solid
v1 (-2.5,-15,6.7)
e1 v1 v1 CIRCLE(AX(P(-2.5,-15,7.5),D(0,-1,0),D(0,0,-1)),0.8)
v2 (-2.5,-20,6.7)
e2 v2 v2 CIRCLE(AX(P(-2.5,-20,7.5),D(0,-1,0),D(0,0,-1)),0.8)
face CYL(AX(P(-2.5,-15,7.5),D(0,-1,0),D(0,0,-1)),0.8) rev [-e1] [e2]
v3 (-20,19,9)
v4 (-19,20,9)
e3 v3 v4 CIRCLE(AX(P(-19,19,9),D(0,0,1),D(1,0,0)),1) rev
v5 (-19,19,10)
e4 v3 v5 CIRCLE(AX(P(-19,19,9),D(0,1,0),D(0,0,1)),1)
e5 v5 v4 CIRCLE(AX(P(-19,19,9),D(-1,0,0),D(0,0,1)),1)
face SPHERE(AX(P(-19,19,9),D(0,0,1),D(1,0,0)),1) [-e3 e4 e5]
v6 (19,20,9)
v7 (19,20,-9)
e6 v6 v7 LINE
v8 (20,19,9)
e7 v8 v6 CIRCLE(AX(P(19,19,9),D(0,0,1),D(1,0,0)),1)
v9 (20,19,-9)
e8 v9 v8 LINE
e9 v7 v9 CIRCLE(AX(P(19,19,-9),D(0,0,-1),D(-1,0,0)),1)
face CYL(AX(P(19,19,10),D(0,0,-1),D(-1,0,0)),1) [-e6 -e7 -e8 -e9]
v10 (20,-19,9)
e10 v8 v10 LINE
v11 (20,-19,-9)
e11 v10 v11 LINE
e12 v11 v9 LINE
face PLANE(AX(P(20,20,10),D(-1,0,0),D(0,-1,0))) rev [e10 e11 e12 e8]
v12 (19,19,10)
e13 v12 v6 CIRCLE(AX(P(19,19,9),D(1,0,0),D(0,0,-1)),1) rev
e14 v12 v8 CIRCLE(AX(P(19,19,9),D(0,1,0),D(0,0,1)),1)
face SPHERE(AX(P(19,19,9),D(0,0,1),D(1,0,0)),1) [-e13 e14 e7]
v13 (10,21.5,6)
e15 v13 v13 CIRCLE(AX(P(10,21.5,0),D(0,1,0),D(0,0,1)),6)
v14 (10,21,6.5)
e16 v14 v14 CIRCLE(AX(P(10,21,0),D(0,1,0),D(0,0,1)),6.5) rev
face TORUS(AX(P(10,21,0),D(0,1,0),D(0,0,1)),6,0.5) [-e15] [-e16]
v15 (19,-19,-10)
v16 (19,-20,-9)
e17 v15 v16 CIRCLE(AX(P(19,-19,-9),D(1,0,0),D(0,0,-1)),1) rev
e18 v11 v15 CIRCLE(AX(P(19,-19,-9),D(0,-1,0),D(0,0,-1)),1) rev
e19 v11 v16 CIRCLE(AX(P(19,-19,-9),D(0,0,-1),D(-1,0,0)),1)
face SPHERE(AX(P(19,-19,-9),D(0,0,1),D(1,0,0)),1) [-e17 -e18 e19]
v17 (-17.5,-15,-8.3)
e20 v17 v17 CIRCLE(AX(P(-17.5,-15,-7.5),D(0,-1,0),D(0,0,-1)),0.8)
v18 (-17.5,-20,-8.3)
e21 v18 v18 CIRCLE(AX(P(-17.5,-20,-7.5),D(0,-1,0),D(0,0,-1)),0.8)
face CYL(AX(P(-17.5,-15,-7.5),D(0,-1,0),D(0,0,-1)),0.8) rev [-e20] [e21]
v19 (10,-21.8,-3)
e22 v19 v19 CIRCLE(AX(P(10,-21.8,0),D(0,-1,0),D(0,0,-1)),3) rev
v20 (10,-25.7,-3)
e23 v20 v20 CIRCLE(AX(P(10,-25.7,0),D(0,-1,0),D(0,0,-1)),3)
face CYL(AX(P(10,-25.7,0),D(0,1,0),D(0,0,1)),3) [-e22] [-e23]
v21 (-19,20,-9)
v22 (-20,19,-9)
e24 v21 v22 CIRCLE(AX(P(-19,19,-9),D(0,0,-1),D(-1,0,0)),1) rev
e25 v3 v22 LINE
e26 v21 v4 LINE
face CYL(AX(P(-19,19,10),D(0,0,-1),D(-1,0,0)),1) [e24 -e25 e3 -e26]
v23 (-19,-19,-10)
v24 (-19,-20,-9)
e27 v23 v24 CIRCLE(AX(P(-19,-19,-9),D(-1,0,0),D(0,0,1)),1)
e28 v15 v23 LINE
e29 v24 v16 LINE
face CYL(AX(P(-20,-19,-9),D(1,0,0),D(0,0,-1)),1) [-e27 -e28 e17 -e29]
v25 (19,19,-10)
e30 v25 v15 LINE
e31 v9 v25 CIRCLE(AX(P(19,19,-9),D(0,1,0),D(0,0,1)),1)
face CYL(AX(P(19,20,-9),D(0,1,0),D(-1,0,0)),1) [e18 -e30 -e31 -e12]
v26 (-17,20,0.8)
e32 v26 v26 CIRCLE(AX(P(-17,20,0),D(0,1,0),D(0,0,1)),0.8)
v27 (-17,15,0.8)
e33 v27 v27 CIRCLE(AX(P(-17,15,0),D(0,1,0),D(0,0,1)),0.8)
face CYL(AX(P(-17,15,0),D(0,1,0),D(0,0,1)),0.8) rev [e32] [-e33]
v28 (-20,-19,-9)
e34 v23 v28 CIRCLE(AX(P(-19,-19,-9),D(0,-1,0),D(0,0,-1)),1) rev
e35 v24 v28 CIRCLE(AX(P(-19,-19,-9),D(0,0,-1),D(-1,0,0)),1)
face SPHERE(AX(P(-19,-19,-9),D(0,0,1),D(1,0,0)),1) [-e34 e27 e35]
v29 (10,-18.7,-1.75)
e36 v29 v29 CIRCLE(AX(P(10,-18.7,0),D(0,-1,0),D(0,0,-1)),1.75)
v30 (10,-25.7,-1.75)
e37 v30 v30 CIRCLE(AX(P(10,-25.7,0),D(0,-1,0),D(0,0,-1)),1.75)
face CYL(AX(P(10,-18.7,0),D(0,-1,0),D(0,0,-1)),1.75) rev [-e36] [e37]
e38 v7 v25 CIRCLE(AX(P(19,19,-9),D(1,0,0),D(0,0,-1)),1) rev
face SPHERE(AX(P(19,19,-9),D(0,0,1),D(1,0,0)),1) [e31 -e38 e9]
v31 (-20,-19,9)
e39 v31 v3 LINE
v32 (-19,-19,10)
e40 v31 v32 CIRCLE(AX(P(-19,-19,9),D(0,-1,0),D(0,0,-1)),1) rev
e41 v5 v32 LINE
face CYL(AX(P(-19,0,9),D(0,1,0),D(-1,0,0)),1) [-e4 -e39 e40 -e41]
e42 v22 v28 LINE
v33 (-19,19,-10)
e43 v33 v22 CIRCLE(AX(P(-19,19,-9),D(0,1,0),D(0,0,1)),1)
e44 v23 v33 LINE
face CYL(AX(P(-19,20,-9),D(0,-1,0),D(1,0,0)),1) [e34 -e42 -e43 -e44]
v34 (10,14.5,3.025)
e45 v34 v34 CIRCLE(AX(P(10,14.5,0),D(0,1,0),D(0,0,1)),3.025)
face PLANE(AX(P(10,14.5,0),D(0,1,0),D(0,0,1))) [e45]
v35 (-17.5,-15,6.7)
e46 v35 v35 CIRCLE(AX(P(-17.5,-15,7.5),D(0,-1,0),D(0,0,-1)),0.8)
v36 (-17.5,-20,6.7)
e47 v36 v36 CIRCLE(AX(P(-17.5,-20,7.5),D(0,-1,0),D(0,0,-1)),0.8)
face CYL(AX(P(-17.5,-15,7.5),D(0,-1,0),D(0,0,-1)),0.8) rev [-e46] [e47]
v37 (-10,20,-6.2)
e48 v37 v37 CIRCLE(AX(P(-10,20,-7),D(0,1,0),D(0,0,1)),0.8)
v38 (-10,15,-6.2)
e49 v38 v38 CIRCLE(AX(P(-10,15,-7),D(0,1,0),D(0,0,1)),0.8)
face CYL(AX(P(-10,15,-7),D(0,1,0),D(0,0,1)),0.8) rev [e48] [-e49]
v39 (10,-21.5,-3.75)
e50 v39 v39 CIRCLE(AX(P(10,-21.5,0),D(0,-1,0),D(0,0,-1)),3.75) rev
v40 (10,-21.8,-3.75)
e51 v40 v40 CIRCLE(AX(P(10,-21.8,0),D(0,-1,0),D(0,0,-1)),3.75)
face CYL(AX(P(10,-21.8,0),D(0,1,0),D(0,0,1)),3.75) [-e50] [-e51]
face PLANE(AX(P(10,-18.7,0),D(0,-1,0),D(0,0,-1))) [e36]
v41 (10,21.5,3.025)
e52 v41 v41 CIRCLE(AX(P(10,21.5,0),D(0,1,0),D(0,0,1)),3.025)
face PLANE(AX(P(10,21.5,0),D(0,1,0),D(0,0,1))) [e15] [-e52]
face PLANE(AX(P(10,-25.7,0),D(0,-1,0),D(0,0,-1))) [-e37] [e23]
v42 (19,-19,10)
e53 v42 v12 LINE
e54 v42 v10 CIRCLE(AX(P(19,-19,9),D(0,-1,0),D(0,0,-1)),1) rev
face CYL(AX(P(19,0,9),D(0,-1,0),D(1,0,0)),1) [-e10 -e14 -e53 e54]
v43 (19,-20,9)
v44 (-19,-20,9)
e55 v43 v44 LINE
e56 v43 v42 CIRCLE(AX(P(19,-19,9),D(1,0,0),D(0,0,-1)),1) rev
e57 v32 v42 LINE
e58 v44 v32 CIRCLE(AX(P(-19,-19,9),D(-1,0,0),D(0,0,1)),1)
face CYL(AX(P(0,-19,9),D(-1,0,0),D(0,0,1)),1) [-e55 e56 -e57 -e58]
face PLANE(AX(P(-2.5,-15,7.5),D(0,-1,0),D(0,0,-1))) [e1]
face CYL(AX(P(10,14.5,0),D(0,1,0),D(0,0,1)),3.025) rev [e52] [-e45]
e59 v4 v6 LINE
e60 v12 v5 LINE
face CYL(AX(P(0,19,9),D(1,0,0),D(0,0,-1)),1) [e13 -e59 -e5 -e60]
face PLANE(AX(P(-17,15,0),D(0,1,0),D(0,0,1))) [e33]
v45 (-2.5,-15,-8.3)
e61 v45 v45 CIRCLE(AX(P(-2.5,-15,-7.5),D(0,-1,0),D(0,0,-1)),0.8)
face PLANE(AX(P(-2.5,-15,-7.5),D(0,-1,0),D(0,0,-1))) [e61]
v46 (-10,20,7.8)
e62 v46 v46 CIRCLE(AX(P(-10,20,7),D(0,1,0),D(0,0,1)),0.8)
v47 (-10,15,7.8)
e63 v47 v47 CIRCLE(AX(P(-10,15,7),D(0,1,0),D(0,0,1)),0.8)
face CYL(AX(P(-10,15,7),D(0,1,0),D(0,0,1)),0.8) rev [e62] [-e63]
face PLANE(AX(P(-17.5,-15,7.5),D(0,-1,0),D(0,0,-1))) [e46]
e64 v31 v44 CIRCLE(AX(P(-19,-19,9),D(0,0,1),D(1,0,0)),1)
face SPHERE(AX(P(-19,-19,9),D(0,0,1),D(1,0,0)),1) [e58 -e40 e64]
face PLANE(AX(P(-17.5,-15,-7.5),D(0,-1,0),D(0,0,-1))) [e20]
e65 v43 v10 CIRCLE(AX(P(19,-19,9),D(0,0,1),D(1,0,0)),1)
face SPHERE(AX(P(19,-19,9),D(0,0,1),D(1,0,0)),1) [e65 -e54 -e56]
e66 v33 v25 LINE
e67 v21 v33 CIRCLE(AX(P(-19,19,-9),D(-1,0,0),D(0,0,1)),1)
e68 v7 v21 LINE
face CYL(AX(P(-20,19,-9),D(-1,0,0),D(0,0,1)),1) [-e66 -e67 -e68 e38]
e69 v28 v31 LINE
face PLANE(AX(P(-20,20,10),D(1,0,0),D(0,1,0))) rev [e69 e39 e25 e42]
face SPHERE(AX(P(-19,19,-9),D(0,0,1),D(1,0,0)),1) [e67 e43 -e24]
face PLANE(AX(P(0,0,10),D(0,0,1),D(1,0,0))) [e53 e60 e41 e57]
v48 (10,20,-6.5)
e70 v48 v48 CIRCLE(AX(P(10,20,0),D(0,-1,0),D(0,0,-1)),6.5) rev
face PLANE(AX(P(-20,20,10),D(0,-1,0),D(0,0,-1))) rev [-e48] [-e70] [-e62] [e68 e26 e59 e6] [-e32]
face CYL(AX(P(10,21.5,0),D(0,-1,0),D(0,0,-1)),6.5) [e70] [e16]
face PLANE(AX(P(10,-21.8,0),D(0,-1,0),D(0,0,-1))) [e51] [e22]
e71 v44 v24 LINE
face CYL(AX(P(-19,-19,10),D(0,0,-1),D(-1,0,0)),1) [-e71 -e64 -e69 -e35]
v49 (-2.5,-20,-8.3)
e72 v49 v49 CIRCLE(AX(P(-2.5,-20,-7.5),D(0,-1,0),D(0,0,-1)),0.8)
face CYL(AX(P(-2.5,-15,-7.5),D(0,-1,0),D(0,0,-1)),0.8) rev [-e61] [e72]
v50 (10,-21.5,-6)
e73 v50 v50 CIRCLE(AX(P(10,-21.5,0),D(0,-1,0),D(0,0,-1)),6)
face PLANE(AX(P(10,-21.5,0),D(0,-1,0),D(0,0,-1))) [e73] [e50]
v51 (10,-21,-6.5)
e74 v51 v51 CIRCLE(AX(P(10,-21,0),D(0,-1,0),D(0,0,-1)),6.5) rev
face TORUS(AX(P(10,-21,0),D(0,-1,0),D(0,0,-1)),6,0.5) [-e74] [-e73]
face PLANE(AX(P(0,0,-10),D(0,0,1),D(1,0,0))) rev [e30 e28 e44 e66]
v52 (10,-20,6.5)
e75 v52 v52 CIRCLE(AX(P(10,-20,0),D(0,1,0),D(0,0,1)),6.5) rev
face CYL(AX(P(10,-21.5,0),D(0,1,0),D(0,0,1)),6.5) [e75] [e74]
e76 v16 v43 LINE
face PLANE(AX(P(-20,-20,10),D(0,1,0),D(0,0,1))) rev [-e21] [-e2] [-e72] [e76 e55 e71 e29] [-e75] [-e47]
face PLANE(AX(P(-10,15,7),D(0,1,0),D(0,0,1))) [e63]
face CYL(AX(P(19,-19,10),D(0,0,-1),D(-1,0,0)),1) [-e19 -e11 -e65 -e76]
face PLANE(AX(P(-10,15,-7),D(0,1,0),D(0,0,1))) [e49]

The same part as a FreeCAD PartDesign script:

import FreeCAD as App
import Part
import Sketcher
from FreeCAD import Vector
Q = App.Units.Quantity


def edges_at(feature, points):
    """Names of the edges that pass closest to the given points."""
    edges = feature.Shape.Edges
    near = lambda p: min(range(len(edges)), key=lambda i: edges[i].distToShape(Part.Vertex(*p))[0])
    return sorted({f"Edge{near(p) + 1}" for p in points})


def add_polygon(sketch, points):
    """Adds a closed chain of lines whose ends are joined by coincident constraints."""
    first, n = sketch.GeometryCount, len(points)
    for a, b in zip(points, points[1:] + points[:1]):
        sketch.addGeometry(Part.LineSegment(App.Vector(*a, 0), App.Vector(*b, 0)), False)
    for i in range(n):
        sketch.addConstraint(Sketcher.Constraint("Coincident", first + i, 2, first + (i + 1) % n, 1))

doc = App.newDocument("Part")
params = doc.addObject("Spreadsheet::Sheet", "Params")
for row, (alias, value) in enumerate([
    ("sketch1_width", "40 mm"),
    ("pad1_length", "20 mm"),
    ("fillet_radius", "1 mm"),
    ("sketch2_diameter", "1.6 mm"),
    ("pocket1_length", "5 mm"),
    ("sketch3_diameter", "1.6 mm"),
    ("pocket2_length", "5 mm"),
    ("sketch4_diameter", "13 mm"),
    ("pad2_length", "1.5 mm"),
    ("sketch5_diameter", "7.5 mm"),
    ("pad3_length", "1.8 mm"),
    ("sketch6_diameter", "6 mm"),
    ("pad4_length", "5.7 mm"),
    ("sketch7_diameter", "3.5 mm"),
    ("pocket3_length", "7 mm"),
    ("fillet2_radius", "0.5 mm"),
    ("sketch8_diameter", "13 mm"),
    ("pad5_length", "1.5 mm"),
    ("sketch9_diameter", "6.05 mm"),
    ("pocket4_length", "7 mm"),
    ("fillet3_radius", "0.5 mm"),
], start=1):
    params.set(f"A{row}", alias)
    params.set(f"B{row}", "=" + value)
    params.setAlias(f"B{row}", alias)

body = doc.addObject("PartDesign::Body", "Body")

sketch1 = body.newObject("Sketcher::SketchObject", "Sketch")
sketch1.AttachmentSupport = (doc.getObject("XY_Plane"), [""])
sketch1.MapMode = "FlatFace"
add_polygon(sketch1, [(-20, 20), (-20, -20), (20, -20), (20, 20)])
sketch1.addConstraint(Sketcher.Constraint("Vertical", 0))
sketch1.addConstraint(Sketcher.Constraint("Horizontal", 1))
sketch1.addConstraint(Sketcher.Constraint("Vertical", 2))
sketch1.addConstraint(Sketcher.Constraint("Horizontal", 3))
sketch1.addConstraint(Sketcher.Constraint("Symmetric", 0, 2, 2, 2, -1, 1))
sketch1.addConstraint(Sketcher.Constraint("Equal", 3, 0))
sketch1.addConstraint(Sketcher.Constraint("DistanceX", 1, 1, 1, 2, Q("40 mm")))
sketch1.setExpression("Constraints[10]", "Params.sketch1_width")
pad1 = body.newObject("PartDesign::Pad", "Pad")
pad1.Profile = sketch1
pad1.setExpression("Length", "Params.pad1_length")
pad1.Midplane = True
doc.recompute()

fillet = body.newObject("PartDesign::Fillet", "Fillet")
fillet.Base = (pad1, ["Edge1"])
fillet.UseAllEdges = True
fillet.setExpression("Radius", "Params.fillet_radius")

sketch2 = body.newObject("Sketcher::SketchObject", "Sketch001")
sketch2.AttachmentSupport = (doc.getObject("XZ_Plane"), [""])
sketch2.MapMode = "FlatFace"
sketch2.AttachmentOffset = App.Placement(Vector(0, 0, 20), App.Rotation())
sketch2.addGeometry(Part.Circle(Vector(-17.5, 7.5, 0), Vector(0, 0, 1), 0.8), False)
sketch2.addGeometry(Part.Circle(Vector(-2.5, 7.5, 0), Vector(0, 0, 1), 0.8), False)
sketch2.addGeometry(Part.Circle(Vector(-2.5, -7.5, 0), Vector(0, 0, 1), 0.8), False)
sketch2.addGeometry(Part.Circle(Vector(-17.5, -7.5, 0), Vector(0, 0, 1), 0.8), False)
sketch2.addConstraint(Sketcher.Constraint("Equal", 0, 1))
sketch2.addConstraint(Sketcher.Constraint("Equal", 1, 2))
sketch2.addConstraint(Sketcher.Constraint("Equal", 2, 3))
sketch2.addConstraint(Sketcher.Constraint("Symmetric", 1, 3, 2, 3, -1))
sketch2.addConstraint(Sketcher.Constraint("Symmetric", 0, 3, 3, 3, -1))
sketch2.addConstraint(Sketcher.Constraint("Horizontal", 0, 3, 1, 3))
sketch2.addConstraint(Sketcher.Constraint("Diameter", 0, Q("1.6 mm")))
sketch2.addConstraint(Sketcher.Constraint("DistanceX", 0, 3, 1, 3, Q("15 mm")))
sketch2.addConstraint(Sketcher.Constraint("DistanceY", 2, 3, 1, 3, Q("15 mm")))
sketch2.addConstraint(Sketcher.Constraint("DistanceX", 0, 3, -1, 1, Q("17.5 mm")))
sketch2.setExpression("Constraints[6]", "Params.sketch2_diameter")
pocket1 = body.newObject("PartDesign::Pocket", "Pocket")
pocket1.Profile = sketch2
pocket1.setExpression("Length", "Params.pocket1_length")

sketch3 = body.newObject("Sketcher::SketchObject", "Sketch002")
sketch3.AttachmentSupport = (doc.getObject("XZ_Plane"), [""])
sketch3.MapMode = "FlatFace"
sketch3.AttachmentOffset = App.Placement(Vector(0, 0, -20), App.Rotation())
sketch3.addGeometry(Part.Circle(Vector(-10, -7, 0), Vector(0, 0, 1), 0.8), False)
sketch3.addGeometry(Part.Circle(Vector(-17, 0, 0), Vector(0, 0, 1), 0.8), False)
sketch3.addGeometry(Part.Circle(Vector(-10, 7, 0), Vector(0, 0, 1), 0.8), False)
sketch3.addConstraint(Sketcher.Constraint("Equal", 0, 1))
sketch3.addConstraint(Sketcher.Constraint("Equal", 1, 2))
sketch3.addConstraint(Sketcher.Constraint("Symmetric", 0, 3, 2, 3, -1))
sketch3.addConstraint(Sketcher.Constraint("PointOnObject", 1, 3, -1))
sketch3.addConstraint(Sketcher.Constraint("Diameter", 0, Q("1.6 mm")))
sketch3.addConstraint(Sketcher.Constraint("DistanceX", 0, 3, -1, 1, Q("10 mm")))
sketch3.addConstraint(Sketcher.Constraint("DistanceY", 0, 3, -1, 1, Q("7 mm")))
sketch3.addConstraint(Sketcher.Constraint("DistanceX", 1, 3, -1, 1, Q("17 mm")))
sketch3.setExpression("Constraints[4]", "Params.sketch3_diameter")
pocket2 = body.newObject("PartDesign::Pocket", "Pocket001")
pocket2.Profile = sketch3
pocket2.setExpression("Length", "Params.pocket2_length")
pocket2.Reversed = True

sketch4 = body.newObject("Sketcher::SketchObject", "Sketch003")
sketch4.AttachmentSupport = (doc.getObject("XZ_Plane"), [""])
sketch4.MapMode = "FlatFace"
sketch4.AttachmentOffset = App.Placement(Vector(0, 0, 20), App.Rotation())
sketch4.addGeometry(Part.Circle(Vector(10, 0, 0), Vector(0, 0, 1), 6), False)
sketch4.addConstraint(Sketcher.Constraint("PointOnObject", 0, 3, -1))
sketch4.addConstraint(Sketcher.Constraint("Diameter", 0, Q("13 mm")))
sketch4.addConstraint(Sketcher.Constraint("DistanceX", -1, 1, 0, 3, Q("10 mm")))
sketch4.setExpression("Constraints[1]", "Params.sketch4_diameter")
pad2 = body.newObject("PartDesign::Pad", "Pad001")
pad2.Profile = sketch4
pad2.setExpression("Length", "Params.pad2_length")

sketch5 = body.newObject("Sketcher::SketchObject", "Sketch004")
sketch5.AttachmentSupport = (doc.getObject("XZ_Plane"), [""])
sketch5.MapMode = "FlatFace"
sketch5.AttachmentOffset = App.Placement(Vector(0, 0, 20), App.Rotation())
sketch5.addGeometry(Part.Circle(Vector(10, 0, 0), Vector(0, 0, 1), 3.8), False)
sketch5.addConstraint(Sketcher.Constraint("PointOnObject", 0, 3, -1))
sketch5.addConstraint(Sketcher.Constraint("Diameter", 0, Q("7.5 mm")))
sketch5.addConstraint(Sketcher.Constraint("DistanceX", -1, 1, 0, 3, Q("10 mm")))
sketch5.setExpression("Constraints[1]", "Params.sketch5_diameter")
pad3 = body.newObject("PartDesign::Pad", "Pad002")
pad3.Profile = sketch5
pad3.setExpression("Length", "Params.pad3_length")

sketch6 = body.newObject("Sketcher::SketchObject", "Sketch005")
sketch6.AttachmentSupport = (doc.getObject("XZ_Plane"), [""])
sketch6.MapMode = "FlatFace"
sketch6.AttachmentOffset = App.Placement(Vector(0, 0, 20), App.Rotation())
sketch6.addGeometry(Part.Circle(Vector(10, 0, 0), Vector(0, 0, 1), 3), False)
sketch6.addConstraint(Sketcher.Constraint("PointOnObject", 0, 3, -1))
sketch6.addConstraint(Sketcher.Constraint("Diameter", 0, Q("6 mm")))
sketch6.addConstraint(Sketcher.Constraint("DistanceX", -1, 1, 0, 3, Q("10 mm")))
sketch6.setExpression("Constraints[1]", "Params.sketch6_diameter")
pad4 = body.newObject("PartDesign::Pad", "Pad003")
pad4.Profile = sketch6
pad4.setExpression("Length", "Params.pad4_length")

sketch7 = body.newObject("Sketcher::SketchObject", "Sketch006")
sketch7.AttachmentSupport = (doc.getObject("XZ_Plane"), [""])
sketch7.MapMode = "FlatFace"
sketch7.AttachmentOffset = App.Placement(Vector(0, 0, 25.7), App.Rotation())
sketch7.addGeometry(Part.Circle(Vector(10, 0, 0), Vector(0, 0, 1), 1.8), False)
sketch7.addConstraint(Sketcher.Constraint("PointOnObject", 0, 3, -1))
sketch7.addConstraint(Sketcher.Constraint("Diameter", 0, Q("3.5 mm")))
sketch7.addConstraint(Sketcher.Constraint("DistanceX", -1, 1, 0, 3, Q("10 mm")))
sketch7.setExpression("Constraints[1]", "Params.sketch7_diameter")
pocket3 = body.newObject("PartDesign::Pocket", "Pocket002")
pocket3.Profile = sketch7
pocket3.setExpression("Length", "Params.pocket3_length")
doc.recompute()

fillet2 = body.newObject("PartDesign::Fillet", "Fillet001")
fillet2.Base = (pocket3, edges_at(pocket3, [(10, -21.5, -6.5)]))
fillet2.setExpression("Radius", "Params.fillet2_radius")

sketch8 = body.newObject("Sketcher::SketchObject", "Sketch007")
sketch8.AttachmentSupport = (doc.getObject("XZ_Plane"), [""])
sketch8.MapMode = "FlatFace"
sketch8.AttachmentOffset = App.Placement(Vector(0, 0, -21.5), App.Rotation())
sketch8.addGeometry(Part.Circle(Vector(10, 0, 0), Vector(0, 0, 1), 6), False)
sketch8.addConstraint(Sketcher.Constraint("PointOnObject", 0, 3, -1))
sketch8.addConstraint(Sketcher.Constraint("Diameter", 0, Q("13 mm")))
sketch8.addConstraint(Sketcher.Constraint("DistanceX", -1, 1, 0, 3, Q("10 mm")))
sketch8.setExpression("Constraints[1]", "Params.sketch8_diameter")
pad5 = body.newObject("PartDesign::Pad", "Pad004")
pad5.Profile = sketch8
pad5.setExpression("Length", "Params.pad5_length")

sketch9 = body.newObject("Sketcher::SketchObject", "Sketch008")
sketch9.AttachmentSupport = (doc.getObject("XZ_Plane"), [""])
sketch9.MapMode = "FlatFace"
sketch9.AttachmentOffset = App.Placement(Vector(0, 0, -21.5), App.Rotation())
sketch9.addGeometry(Part.Circle(Vector(10, 0, 0), Vector(0, 0, 1), 3), False)
sketch9.addConstraint(Sketcher.Constraint("PointOnObject", 0, 3, -1))
sketch9.addConstraint(Sketcher.Constraint("Diameter", 0, Q("6.05 mm")))
sketch9.addConstraint(Sketcher.Constraint("DistanceX", -1, 1, 0, 3, Q("10 mm")))
sketch9.setExpression("Constraints[1]", "Params.sketch9_diameter")
pocket4 = body.newObject("PartDesign::Pocket", "Pocket003")
pocket4.Profile = sketch9
pocket4.setExpression("Length", "Params.pocket4_length")
pocket4.Reversed = True
doc.recompute()

fillet3 = body.newObject("PartDesign::Fillet", "Fillet002")
fillet3.Base = (pocket4, edges_at(pocket4, [(10, 21.5, -6.5)]))
fillet3.setExpression("Radius", "Params.fillet3_radius")

doc.recompute()
